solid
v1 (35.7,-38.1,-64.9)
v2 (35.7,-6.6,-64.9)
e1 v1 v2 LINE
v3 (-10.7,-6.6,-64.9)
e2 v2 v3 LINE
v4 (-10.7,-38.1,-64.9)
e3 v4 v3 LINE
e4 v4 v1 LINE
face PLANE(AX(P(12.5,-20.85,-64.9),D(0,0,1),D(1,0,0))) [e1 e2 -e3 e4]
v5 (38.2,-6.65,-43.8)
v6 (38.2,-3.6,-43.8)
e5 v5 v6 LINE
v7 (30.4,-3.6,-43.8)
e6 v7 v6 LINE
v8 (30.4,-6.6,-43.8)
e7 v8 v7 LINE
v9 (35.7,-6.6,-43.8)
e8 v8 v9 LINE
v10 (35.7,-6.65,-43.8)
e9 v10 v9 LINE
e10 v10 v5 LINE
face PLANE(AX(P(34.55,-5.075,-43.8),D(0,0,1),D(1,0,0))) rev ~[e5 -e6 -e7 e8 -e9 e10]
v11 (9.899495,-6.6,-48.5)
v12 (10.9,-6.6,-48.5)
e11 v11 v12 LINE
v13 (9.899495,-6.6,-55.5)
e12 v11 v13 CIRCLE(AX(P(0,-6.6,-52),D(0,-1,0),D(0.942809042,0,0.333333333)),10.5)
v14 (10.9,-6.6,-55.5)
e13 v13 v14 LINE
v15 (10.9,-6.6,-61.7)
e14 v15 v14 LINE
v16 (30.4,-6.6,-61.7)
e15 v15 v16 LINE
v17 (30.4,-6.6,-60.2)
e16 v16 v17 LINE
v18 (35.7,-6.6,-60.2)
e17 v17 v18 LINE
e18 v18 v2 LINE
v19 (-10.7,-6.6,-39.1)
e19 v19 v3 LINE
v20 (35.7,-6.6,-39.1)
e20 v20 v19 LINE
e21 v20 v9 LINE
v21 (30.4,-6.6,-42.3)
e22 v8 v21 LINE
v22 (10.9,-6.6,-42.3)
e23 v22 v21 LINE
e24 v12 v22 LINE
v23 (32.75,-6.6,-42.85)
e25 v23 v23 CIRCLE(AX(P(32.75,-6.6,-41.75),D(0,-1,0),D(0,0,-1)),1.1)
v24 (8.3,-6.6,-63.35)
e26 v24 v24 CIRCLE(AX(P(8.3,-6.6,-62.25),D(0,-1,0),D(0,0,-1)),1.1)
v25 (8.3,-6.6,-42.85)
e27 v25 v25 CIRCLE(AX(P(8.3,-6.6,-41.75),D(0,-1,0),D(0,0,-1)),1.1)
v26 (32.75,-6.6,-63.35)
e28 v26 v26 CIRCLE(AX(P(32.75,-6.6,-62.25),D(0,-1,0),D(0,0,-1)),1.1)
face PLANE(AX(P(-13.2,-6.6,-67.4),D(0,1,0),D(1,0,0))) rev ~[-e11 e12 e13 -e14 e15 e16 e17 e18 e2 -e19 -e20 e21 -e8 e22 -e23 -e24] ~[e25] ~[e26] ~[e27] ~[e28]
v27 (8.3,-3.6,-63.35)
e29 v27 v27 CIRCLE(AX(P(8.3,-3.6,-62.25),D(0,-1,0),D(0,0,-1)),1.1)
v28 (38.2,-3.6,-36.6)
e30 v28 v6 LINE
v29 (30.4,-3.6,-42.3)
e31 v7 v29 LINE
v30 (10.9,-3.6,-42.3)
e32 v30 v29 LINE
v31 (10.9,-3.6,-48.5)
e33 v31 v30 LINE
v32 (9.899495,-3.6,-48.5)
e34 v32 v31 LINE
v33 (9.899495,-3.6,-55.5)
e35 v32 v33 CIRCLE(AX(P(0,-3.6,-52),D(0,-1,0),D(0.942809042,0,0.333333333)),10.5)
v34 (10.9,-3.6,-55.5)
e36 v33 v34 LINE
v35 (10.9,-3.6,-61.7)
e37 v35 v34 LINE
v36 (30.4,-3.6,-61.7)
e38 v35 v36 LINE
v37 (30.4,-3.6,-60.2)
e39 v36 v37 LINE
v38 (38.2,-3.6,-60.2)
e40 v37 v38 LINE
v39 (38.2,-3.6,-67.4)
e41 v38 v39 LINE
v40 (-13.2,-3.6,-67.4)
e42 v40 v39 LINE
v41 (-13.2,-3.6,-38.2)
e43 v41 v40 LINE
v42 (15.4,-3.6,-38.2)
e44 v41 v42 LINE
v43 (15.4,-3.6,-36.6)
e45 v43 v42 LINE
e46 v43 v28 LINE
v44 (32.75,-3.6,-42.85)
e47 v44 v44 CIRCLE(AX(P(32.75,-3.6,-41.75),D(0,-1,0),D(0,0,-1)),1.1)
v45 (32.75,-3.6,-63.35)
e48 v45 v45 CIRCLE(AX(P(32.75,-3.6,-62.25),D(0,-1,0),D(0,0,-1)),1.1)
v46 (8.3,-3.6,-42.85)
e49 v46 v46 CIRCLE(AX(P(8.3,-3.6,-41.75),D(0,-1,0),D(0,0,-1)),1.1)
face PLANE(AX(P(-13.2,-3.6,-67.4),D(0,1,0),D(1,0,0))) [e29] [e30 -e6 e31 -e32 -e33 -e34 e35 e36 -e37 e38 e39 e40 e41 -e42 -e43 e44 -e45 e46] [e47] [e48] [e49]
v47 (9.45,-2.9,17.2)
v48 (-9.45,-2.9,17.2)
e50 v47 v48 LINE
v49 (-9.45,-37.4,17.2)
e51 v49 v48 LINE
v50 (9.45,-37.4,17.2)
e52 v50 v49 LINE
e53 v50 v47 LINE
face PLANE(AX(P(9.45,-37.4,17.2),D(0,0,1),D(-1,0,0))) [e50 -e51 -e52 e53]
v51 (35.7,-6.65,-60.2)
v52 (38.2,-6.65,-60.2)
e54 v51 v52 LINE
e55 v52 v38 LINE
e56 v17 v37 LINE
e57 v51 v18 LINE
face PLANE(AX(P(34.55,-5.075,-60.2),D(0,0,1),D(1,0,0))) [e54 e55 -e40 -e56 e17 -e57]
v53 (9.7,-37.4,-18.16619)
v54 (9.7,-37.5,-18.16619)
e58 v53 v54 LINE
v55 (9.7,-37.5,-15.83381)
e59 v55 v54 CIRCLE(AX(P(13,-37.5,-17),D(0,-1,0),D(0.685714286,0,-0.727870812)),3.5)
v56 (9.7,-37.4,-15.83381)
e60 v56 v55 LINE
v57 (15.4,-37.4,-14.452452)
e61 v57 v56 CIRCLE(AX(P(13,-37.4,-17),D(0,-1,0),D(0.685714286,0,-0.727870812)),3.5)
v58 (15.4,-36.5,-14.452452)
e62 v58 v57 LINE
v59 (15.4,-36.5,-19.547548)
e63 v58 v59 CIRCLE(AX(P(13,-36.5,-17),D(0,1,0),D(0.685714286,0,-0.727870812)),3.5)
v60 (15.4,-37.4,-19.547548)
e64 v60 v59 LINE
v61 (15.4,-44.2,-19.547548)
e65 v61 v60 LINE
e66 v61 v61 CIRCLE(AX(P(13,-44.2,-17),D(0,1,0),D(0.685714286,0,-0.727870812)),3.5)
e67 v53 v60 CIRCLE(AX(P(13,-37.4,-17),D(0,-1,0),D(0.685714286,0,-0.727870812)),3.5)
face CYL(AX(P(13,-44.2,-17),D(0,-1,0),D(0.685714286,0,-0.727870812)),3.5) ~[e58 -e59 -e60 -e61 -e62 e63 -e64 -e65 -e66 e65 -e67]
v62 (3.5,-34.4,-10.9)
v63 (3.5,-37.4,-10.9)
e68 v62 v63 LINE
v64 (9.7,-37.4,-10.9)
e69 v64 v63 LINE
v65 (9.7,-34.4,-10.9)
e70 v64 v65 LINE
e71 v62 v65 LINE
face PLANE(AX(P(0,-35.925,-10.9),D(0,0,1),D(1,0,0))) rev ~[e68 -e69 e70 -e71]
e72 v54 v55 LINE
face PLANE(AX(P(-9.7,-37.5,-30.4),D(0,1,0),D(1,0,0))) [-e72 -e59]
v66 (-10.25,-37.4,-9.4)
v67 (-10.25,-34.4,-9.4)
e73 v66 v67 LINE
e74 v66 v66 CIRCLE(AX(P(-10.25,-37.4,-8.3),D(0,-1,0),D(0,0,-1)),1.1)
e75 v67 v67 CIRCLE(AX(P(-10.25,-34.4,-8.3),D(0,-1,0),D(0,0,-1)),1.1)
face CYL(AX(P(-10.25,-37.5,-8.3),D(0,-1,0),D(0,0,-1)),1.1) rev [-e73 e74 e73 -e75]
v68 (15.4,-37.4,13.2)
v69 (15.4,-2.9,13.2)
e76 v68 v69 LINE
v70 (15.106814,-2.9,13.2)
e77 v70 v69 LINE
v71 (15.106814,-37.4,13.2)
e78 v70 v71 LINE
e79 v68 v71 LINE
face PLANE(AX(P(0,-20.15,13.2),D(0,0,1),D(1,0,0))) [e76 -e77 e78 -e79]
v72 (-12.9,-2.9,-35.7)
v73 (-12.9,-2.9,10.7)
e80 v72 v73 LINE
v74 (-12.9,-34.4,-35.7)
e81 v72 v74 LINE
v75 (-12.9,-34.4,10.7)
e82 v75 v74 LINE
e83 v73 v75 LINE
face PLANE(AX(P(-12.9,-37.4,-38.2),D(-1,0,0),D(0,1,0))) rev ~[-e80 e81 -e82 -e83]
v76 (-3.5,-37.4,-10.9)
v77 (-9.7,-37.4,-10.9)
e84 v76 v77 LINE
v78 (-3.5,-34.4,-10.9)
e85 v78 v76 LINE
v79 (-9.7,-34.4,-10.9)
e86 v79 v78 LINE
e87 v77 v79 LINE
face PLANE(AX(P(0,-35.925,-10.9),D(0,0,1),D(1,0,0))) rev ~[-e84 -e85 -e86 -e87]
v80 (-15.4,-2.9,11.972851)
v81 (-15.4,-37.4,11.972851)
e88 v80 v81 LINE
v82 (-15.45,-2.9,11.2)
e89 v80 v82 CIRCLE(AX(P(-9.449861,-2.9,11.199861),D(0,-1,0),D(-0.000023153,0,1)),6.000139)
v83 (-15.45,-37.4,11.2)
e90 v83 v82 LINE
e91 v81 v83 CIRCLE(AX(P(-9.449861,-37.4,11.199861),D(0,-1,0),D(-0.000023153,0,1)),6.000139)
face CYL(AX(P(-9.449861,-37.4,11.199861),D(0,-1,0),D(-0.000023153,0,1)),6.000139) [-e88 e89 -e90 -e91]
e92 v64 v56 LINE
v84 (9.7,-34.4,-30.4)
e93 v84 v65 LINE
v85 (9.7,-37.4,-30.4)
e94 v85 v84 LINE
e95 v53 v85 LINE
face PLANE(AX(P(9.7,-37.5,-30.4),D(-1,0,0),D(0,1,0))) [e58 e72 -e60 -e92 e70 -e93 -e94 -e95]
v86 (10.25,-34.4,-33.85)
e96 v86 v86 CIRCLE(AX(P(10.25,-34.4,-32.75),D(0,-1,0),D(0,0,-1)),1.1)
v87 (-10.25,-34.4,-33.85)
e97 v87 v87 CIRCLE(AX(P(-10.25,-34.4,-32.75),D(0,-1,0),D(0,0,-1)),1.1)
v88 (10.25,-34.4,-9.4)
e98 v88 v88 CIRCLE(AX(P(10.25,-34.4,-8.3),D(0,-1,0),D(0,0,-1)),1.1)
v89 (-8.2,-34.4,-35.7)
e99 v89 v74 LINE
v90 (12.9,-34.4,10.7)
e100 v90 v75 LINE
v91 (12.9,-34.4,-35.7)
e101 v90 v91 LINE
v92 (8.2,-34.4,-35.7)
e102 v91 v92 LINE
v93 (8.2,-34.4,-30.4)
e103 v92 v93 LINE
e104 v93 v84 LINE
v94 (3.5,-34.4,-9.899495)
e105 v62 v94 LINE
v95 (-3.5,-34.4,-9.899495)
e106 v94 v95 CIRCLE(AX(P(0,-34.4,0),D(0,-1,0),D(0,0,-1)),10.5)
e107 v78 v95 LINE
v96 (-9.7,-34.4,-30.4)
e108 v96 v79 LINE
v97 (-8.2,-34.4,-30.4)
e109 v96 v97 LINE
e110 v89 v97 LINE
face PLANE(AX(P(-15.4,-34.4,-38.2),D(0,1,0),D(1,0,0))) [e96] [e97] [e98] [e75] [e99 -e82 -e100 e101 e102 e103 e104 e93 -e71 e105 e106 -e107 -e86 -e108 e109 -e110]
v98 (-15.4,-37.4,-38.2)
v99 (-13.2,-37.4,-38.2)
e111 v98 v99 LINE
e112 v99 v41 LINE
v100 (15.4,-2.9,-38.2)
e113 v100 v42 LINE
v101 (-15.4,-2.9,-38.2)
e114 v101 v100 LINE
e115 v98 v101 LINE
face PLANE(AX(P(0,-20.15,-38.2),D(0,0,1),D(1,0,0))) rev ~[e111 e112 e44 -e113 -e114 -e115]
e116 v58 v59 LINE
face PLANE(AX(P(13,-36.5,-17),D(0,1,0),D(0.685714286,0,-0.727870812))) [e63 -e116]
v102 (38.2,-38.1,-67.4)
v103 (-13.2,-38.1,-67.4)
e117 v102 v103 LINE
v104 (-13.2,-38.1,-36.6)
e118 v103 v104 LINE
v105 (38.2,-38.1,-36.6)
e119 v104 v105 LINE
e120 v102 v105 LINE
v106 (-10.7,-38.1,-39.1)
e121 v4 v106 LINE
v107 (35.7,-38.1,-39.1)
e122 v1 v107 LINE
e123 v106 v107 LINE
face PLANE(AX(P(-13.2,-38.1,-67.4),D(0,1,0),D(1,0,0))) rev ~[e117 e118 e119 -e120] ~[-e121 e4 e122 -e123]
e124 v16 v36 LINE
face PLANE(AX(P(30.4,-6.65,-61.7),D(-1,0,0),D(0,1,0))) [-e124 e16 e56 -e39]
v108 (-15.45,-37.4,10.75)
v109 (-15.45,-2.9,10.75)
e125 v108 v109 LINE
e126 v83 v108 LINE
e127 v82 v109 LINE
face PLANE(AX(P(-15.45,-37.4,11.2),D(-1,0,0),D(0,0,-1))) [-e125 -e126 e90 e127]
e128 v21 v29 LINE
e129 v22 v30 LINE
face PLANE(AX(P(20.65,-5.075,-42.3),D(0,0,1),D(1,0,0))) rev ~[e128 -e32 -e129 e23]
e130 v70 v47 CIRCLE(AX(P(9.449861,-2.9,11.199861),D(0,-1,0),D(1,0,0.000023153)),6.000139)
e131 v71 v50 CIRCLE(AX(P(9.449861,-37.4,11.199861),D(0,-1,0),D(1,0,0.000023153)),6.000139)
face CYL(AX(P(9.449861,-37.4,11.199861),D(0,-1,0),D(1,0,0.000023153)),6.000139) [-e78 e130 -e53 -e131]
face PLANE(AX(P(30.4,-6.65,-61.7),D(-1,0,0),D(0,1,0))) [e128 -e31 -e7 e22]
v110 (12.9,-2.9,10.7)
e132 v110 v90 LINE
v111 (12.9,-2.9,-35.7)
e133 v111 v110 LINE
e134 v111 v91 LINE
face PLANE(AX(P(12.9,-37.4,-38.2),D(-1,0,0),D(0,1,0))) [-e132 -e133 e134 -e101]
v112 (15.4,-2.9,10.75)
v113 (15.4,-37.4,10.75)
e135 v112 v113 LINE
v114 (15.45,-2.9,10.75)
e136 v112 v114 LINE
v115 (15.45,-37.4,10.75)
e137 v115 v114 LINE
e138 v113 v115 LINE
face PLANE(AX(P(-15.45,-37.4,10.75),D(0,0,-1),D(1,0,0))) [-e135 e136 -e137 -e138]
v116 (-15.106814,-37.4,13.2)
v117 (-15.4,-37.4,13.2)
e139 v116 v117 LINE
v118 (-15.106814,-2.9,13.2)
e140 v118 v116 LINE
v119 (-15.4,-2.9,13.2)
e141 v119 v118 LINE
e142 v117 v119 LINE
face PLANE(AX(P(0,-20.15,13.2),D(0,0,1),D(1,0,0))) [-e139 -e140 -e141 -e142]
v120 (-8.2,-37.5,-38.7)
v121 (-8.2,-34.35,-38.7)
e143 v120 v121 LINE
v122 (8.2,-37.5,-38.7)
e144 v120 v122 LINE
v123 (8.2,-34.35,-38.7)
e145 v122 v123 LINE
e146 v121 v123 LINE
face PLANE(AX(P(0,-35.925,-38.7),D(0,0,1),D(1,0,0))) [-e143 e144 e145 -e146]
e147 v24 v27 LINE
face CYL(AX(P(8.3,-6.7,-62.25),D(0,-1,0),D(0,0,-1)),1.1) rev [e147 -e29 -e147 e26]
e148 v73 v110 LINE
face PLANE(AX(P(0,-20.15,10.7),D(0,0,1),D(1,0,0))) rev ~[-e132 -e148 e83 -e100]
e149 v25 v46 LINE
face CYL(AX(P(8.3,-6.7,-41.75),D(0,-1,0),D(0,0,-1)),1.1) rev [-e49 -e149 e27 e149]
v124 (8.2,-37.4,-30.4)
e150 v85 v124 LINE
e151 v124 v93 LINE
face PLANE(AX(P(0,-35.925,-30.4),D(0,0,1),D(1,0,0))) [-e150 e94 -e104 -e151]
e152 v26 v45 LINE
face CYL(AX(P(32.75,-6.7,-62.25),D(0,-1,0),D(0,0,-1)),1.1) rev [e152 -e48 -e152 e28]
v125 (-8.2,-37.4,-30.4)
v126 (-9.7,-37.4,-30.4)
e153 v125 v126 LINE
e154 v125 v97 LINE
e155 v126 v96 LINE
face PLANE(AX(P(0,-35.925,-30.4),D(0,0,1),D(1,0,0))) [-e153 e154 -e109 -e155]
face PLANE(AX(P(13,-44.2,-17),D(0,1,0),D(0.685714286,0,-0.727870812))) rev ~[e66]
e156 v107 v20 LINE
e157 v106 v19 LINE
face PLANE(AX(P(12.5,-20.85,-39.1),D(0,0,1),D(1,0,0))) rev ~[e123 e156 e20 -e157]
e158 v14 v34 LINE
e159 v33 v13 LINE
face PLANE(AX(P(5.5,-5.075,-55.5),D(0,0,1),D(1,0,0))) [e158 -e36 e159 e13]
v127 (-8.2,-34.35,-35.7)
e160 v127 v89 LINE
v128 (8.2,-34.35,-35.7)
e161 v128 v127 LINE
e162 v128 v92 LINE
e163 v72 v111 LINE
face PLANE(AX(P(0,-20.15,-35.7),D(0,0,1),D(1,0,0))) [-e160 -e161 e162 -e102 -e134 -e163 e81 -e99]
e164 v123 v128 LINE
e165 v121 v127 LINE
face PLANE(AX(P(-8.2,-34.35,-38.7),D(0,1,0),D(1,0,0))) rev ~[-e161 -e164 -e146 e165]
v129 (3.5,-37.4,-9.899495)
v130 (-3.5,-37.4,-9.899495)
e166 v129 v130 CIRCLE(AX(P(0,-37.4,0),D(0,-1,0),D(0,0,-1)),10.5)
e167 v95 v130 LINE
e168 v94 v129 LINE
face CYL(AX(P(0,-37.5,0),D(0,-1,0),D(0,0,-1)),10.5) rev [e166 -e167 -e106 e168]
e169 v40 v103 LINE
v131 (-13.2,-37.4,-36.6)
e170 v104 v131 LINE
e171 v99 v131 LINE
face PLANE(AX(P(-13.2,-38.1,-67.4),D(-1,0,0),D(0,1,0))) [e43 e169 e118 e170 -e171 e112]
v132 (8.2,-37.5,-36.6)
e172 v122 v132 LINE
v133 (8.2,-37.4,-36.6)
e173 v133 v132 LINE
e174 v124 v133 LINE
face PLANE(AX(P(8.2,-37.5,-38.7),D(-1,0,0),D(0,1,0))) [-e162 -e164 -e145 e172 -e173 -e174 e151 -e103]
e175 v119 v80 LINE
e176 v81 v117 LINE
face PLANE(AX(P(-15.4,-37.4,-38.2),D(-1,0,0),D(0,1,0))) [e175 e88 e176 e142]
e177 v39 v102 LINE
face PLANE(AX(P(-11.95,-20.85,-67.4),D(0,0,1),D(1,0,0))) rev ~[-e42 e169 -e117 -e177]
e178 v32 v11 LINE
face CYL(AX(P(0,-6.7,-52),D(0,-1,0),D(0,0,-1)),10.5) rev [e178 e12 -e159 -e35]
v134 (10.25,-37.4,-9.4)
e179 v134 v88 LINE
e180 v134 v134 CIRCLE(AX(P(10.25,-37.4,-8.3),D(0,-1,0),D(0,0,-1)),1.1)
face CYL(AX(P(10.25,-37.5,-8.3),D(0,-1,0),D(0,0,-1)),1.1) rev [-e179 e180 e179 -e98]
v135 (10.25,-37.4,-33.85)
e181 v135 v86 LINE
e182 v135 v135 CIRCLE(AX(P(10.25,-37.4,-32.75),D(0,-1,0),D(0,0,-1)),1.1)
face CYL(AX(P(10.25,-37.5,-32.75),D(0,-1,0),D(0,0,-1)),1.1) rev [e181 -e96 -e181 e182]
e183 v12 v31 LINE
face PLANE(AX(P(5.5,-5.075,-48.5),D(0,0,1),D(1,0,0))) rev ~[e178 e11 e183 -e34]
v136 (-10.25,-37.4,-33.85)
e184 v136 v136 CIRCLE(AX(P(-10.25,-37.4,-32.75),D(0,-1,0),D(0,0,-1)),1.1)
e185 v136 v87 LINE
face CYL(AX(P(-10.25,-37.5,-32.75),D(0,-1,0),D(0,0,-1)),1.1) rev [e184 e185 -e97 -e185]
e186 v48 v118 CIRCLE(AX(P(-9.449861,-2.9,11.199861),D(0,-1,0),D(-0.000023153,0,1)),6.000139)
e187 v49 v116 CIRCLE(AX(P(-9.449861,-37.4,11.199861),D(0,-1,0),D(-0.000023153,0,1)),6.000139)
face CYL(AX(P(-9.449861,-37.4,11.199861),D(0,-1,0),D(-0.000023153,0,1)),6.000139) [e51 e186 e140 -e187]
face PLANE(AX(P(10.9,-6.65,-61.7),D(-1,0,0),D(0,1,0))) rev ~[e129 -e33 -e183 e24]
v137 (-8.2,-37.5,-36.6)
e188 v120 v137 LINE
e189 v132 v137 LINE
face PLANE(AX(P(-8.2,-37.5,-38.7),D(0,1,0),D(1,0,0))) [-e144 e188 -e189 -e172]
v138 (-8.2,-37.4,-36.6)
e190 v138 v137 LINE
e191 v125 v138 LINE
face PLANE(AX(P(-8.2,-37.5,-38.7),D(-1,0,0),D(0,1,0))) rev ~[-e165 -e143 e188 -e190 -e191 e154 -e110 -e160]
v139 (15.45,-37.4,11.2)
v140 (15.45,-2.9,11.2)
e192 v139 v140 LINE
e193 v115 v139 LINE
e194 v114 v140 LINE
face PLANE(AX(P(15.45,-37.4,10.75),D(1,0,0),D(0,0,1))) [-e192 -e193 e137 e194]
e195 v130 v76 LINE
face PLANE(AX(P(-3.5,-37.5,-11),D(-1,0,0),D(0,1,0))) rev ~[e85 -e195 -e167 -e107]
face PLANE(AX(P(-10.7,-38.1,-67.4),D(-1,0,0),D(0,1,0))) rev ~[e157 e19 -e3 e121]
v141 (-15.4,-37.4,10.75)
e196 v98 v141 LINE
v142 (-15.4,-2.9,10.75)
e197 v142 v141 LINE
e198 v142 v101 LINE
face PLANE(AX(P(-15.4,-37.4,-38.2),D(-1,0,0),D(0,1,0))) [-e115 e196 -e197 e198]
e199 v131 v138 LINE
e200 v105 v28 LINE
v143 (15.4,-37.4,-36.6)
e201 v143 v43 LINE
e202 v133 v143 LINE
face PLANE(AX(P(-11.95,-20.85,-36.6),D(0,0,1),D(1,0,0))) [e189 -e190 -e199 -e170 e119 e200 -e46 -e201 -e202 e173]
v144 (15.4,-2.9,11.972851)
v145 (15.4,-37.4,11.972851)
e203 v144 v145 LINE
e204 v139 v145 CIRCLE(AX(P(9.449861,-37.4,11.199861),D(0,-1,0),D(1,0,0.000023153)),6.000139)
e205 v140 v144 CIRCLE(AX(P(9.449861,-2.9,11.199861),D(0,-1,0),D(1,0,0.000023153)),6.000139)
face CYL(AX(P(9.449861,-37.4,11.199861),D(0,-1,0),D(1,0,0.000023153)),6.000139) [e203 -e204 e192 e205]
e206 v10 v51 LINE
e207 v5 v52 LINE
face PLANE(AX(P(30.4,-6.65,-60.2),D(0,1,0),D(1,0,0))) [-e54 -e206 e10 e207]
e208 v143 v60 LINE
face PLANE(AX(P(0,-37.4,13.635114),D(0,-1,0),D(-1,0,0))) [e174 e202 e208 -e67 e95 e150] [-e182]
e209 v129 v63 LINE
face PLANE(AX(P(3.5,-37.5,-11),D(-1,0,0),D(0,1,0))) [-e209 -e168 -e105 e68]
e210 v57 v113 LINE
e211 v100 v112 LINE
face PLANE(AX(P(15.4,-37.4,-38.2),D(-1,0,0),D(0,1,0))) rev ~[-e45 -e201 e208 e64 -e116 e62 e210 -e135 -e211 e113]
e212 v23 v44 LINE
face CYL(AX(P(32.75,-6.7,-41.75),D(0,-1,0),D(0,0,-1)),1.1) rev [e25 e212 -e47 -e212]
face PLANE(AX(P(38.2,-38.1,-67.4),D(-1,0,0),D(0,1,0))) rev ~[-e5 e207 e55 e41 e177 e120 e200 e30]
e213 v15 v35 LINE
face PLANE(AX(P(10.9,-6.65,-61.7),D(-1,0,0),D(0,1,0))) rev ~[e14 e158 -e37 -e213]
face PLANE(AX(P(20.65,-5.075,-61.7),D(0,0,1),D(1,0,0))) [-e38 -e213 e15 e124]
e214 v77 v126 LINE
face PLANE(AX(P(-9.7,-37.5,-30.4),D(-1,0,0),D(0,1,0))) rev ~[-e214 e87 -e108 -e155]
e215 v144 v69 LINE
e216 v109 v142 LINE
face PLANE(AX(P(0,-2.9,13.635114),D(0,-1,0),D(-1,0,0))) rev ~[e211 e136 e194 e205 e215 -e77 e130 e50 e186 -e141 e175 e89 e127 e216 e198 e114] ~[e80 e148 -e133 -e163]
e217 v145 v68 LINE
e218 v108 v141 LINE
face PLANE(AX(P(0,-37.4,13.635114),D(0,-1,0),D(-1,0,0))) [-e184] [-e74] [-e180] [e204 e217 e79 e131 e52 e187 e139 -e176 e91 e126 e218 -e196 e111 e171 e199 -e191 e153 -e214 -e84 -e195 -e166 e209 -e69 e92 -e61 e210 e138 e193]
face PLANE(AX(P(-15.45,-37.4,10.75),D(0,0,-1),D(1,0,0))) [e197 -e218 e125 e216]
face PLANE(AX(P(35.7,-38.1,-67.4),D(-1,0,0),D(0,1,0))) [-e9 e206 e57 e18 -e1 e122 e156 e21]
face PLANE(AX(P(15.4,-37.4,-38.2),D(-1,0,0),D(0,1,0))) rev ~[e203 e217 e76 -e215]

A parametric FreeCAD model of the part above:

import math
import FreeCAD as App
import Part
import Sketcher

V = App.Vector


def add_polygon(sketch, points):
    """Adds a closed chain of lines whose ends are joined by coincident constraints."""
    first, n = sketch.GeometryCount, len(points)
    for a, b in zip(points, points[1:] + points[:1]):
        sketch.addGeometry(Part.LineSegment(App.Vector(*a, 0), App.Vector(*b, 0)), False)
    for i in range(n):
        sketch.addConstraint(Sketcher.Constraint("Coincident", first + i, 2, first + (i + 1) % n, 1))

doc = App.newDocument("Part")
params = doc.addObject("Spreadsheet::Sheet", "Params")
for row, (alias, value) in enumerate([
    ("sketch1_width", "30.8 mm"),
    ("sketch1_height", "34.5 mm"),
    ("pad1_length", "2.5 mm"),
    ("sketch2_width", "30.8 mm"),
    ("sketch2_height", "34.5 mm"),
    ("pad2_length", "2.5 mm"),
    ("sketch3_width", "2.5 mm"),
    ("sketch3_height", "34.5 mm"),
    ("pad3_length", "51.4 mm"),
    ("sketch4_width", "2.5 mm"),
    ("sketch4_height", "34.5 mm"),
    ("pad4_length", "51.4 mm"),
    ("sketch5_height", "3 mm"),
    ("sketch5_width", "30.8 mm"),
    ("pad5_length", "51.4 mm"),
    ("sketch6_width", "2.5 mm"),
    ("sketch6_height", "34.5 mm"),
    ("pad6_length", "30.8 mm"),
    ("sketch7_width", "2.5 mm"),
    ("sketch7_height", "34.5 mm"),
    ("pad7_length", "30.8 mm"),
    ("sketch8_width", "51.4 mm"),
    ("sketch8_height", "34.5 mm"),
    ("pad8_length", "2.5 mm"),
    ("sketch9_width", "51.4 mm"),
    ("sketch9_height", "34.5 mm"),
    ("pad9_length", "2.5 mm"),
    ("sketch10_height", "3 mm"),
    ("sketch10_width", "51.4 mm"),
    ("pad10_length", "30.8 mm"),
    ("sketch11_width", "30.9 mm"),
    ("sketch11_width2", "18.9 mm"),
    ("sketch11_height", "0.45 mm"),
    ("pad11_length", "34.5 mm"),
    ("sketch12_diameter", "7 mm"),
    ("pad12_length", "7.7 mm"),
    ("sketch13_diameter", "21 mm"),
    ("pocket1_length", "3.2 mm"),
    ("sketch14_width", "19.4 mm"),
    ("sketch14_height", "3.15 mm"),
    ("pocket2_length", "19.5 mm"),
    ("sketch15_width", "16.4 mm"),
    ("sketch15_height", "3.15 mm"),
    ("pocket3_length", "8.3 mm"),
    ("sketch16_width", "7 mm"),
    ("sketch16_height", "3.15 mm"),
    ("pocket4_length", "11 mm"),
    ("sketch17_diameter", "2.2 mm"),
    ("pocket5_length", "3.2 mm"),
    ("sketch18_diameter", "2.2 mm"),
    ("pocket6_length", "3.2 mm"),
    ("sketch19_diameter", "2.2 mm"),
    ("pocket7_length", "3.2 mm"),
    ("sketch20_diameter", "2.2 mm"),
    ("pocket8_length", "3.2 mm"),
    ("sketch21_diameter", "21 mm"),
    ("pocket9_length", "3.2 mm"),
    ("sketch22_width", "19.5 mm"),
    ("sketch22_height", "3.15 mm"),
    ("pocket10_length", "19.4 mm"),
    ("sketch23_width", "8.3 mm"),
    ("sketch23_height", "3.15 mm"),
    ("pocket11_length", "16.4 mm"),
    ("sketch24_width", "11 mm"),
    ("sketch24_height", "3.15 mm"),
    ("pocket12_length", "7 mm"),
    ("sketch25_diameter", "2.2 mm"),
    ("pocket13_length", "3.2 mm"),
    ("sketch26_diameter", "2.2 mm"),
    ("pocket14_length", "3.2 mm"),
    ("sketch27_diameter", "2.2 mm"),
    ("pocket15_length", "3.2 mm"),
    ("sketch28_diameter", "2.2 mm"),
    ("pocket16_length", "3.2 mm"),
], start=1):
    params.set(f"A{row}", alias)
    params.set(f"B{row}", "=" + value)
    params.setAlias(f"B{row}", alias)

body = doc.addObject("PartDesign::Body", "Body")

# Sketch on XY plane
sketch1 = body.newObject("Sketcher::SketchObject", "Sketch")
sketch1.AttachmentSupport = (doc.getObject("XY_Plane"), [""])
sketch1.MapMode = "FlatFace"
sketch1.AttachmentOffset = App.Placement(V(0, 0, -38.2), App.Rotation())
add_polygon(sketch1, [(-15.4, -2.9), (-15.4, -37.4), (15.4, -37.4), (15.4, -2.9)])  # lines 0-3
sketch1.addConstraint([
    Sketcher.Constraint("Vertical", 0),
    Sketcher.Constraint("Horizontal", 1),
    Sketcher.Constraint("Vertical", 2),
    Sketcher.Constraint("Horizontal", 3),
    Sketcher.Constraint("DistanceX", 1, 1, 1, 2, 30.8),
    Sketcher.Constraint("DistanceY", 0, 2, 0, 1, 34.5),
    Sketcher.Constraint("DistanceX", 0, 2, -1, 1, 15.4),
    Sketcher.Constraint("DistanceY", 0, 2, -1, 1, 37.4),
])
sketch1.setExpression("Constraints[8]", "Params.sketch1_width")
sketch1.setExpression("Constraints[9]", "Params.sketch1_height")
pad1 = body.newObject("PartDesign::Pad", "Pad")
pad1.Profile = sketch1
pad1.setExpression("Length", "Params.pad1_length")
body2 = doc.addObject("PartDesign::Body", "Body001")

# Sketch on XY plane
sketch2 = body2.newObject("Sketcher::SketchObject", "Sketch001")
sketch2.AttachmentSupport = (doc.getObject("XY_Plane001"), [""])
sketch2.MapMode = "FlatFace"
sketch2.AttachmentOffset = App.Placement(V(0, 0, 10.7), App.Rotation())
add_polygon(sketch2, [(-15.4, -2.9), (-15.4, -37.4), (15.4, -37.4), (15.4, -2.9)])  # lines 0-3
sketch2.addConstraint([
    Sketcher.Constraint("Vertical", 0),
    Sketcher.Constraint("Horizontal", 1),
    Sketcher.Constraint("Vertical", 2),
    Sketcher.Constraint("Horizontal", 3),
    Sketcher.Constraint("DistanceX", 1, 1, 1, 2, 30.8),
    Sketcher.Constraint("DistanceY", 0, 2, 0, 1, 34.5),
    Sketcher.Constraint("DistanceX", 0, 2, -1, 1, 15.4),
    Sketcher.Constraint("DistanceY", 0, 2, -1, 1, 37.4),
])
sketch2.setExpression("Constraints[8]", "Params.sketch2_width")
sketch2.setExpression("Constraints[9]", "Params.sketch2_height")
pad2 = body2.newObject("PartDesign::Pad", "Pad001")
pad2.Profile = sketch2
pad2.setExpression("Length", "Params.pad2_length")
body.AllowCompound = True
doc.recompute()

boolean = body.newObject("PartDesign::Boolean", "Boolean")
boolean.Type = "Fuse"
boolean.addObjects([body2])

# Sketch on XY plane
sketch3 = body.newObject("Sketcher::SketchObject", "Sketch002")
sketch3.AttachmentSupport = (doc.getObject("XY_Plane"), [""])
sketch3.MapMode = "FlatFace"
sketch3.AttachmentOffset = App.Placement(V(0, 0, -38.2), App.Rotation())
add_polygon(sketch3, [(-15.4, -2.9), (-15.4, -37.4), (-12.9, -37.4), (-12.9, -2.9)])  # lines 0-3
sketch3.addConstraint([
    Sketcher.Constraint("Vertical", 0),
    Sketcher.Constraint("Horizontal", 1),
    Sketcher.Constraint("Vertical", 2),
    Sketcher.Constraint("Horizontal", 3),
    Sketcher.Constraint("DistanceX", 1, 1, 1, 2, 2.5),
    Sketcher.Constraint("DistanceY", 0, 2, 0, 1, 34.5),
    Sketcher.Constraint("DistanceX", 0, 2, -1, 1, 15.4),
    Sketcher.Constraint("DistanceY", 0, 2, -1, 1, 37.4),
])
sketch3.setExpression("Constraints[8]", "Params.sketch3_width")
sketch3.setExpression("Constraints[9]", "Params.sketch3_height")
pad3 = body.newObject("PartDesign::Pad", "Pad002")
pad3.Profile = sketch3
pad3.setExpression("Length", "Params.pad3_length")

# Sketch on XY plane
sketch4 = body.newObject("Sketcher::SketchObject", "Sketch003")
sketch4.AttachmentSupport = (doc.getObject("XY_Plane"), [""])
sketch4.MapMode = "FlatFace"
sketch4.AttachmentOffset = App.Placement(V(0, 0, -38.2), App.Rotation())
add_polygon(sketch4, [(12.9, -2.9), (12.9, -37.4), (15.4, -37.4), (15.4, -2.9)])  # lines 0-3
sketch4.addConstraint([
    Sketcher.Constraint("Vertical", 0),
    Sketcher.Constraint("Horizontal", 1),
    Sketcher.Constraint("Vertical", 2),
    Sketcher.Constraint("Horizontal", 3),
    Sketcher.Constraint("DistanceX", 1, 1, 1, 2, 2.5),
    Sketcher.Constraint("DistanceY", 0, 2, 0, 1, 34.5),
    Sketcher.Constraint("DistanceX", -1, 1, 0, 2, 12.9),
    Sketcher.Constraint("DistanceY", 0, 2, -1, 1, 37.4),
])
sketch4.setExpression("Constraints[8]", "Params.sketch4_width")
sketch4.setExpression("Constraints[9]", "Params.sketch4_height")
pad4 = body.newObject("PartDesign::Pad", "Pad003")
pad4.Profile = sketch4
pad4.setExpression("Length", "Params.pad4_length")

# Sketch on XY plane
sketch5 = body.newObject("Sketcher::SketchObject", "Sketch004")
sketch5.AttachmentSupport = (doc.getObject("XY_Plane"), [""])
sketch5.MapMode = "FlatFace"
sketch5.AttachmentOffset = App.Placement(V(0, 0, -38.2), App.Rotation())
add_polygon(sketch5, [(-15.4, -34.4), (-15.4, -37.4), (15.4, -37.4), (15.4, -34.4)])  # lines 0-3
sketch5.addConstraint([
    Sketcher.Constraint("Vertical", 0),
    Sketcher.Constraint("Horizontal", 1),
    Sketcher.Constraint("Vertical", 2),
    Sketcher.Constraint("Horizontal", 3),
    Sketcher.Constraint("DistanceY", 0, 2, 0, 1, 3.0),
    Sketcher.Constraint("DistanceX", 1, 1, 1, 2, 30.8),
    Sketcher.Constraint("DistanceX", 0, 2, -1, 1, 15.4),
    Sketcher.Constraint("DistanceY", 0, 2, -1, 1, 37.4),
])
sketch5.setExpression("Constraints[8]", "Params.sketch5_height")
sketch5.setExpression("Constraints[9]", "Params.sketch5_width")
pad5 = body.newObject("PartDesign::Pad", "Pad004")
pad5.Profile = sketch5
pad5.setExpression("Length", "Params.pad5_length")

# Sketch on XY plane
sketch6 = body.newObject("Sketcher::SketchObject", "Sketch005")
sketch6.AttachmentSupport = (doc.getObject("XY_Plane"), [""])
sketch6.MapMode = "FlatFace"
sketch6.AttachmentOffset = App.Placement(V(0, 0, -67.4), App.Rotation())
add_polygon(sketch6, [(-13.2, -3.6), (-13.2, -38.1), (-10.7, -38.1), (-10.7, -3.6)])  # lines 0-3
sketch6.addConstraint([
    Sketcher.Constraint("Vertical", 0),
    Sketcher.Constraint("Horizontal", 1),
    Sketcher.Constraint("Vertical", 2),
    Sketcher.Constraint("Horizontal", 3),
    Sketcher.Constraint("DistanceX", 1, 1, 1, 2, 2.5),
    Sketcher.Constraint("DistanceY", 0, 2, 0, 1, 34.5),
    Sketcher.Constraint("DistanceX", 0, 2, -1, 1, 13.2),
    Sketcher.Constraint("DistanceY", 0, 2, -1, 1, 38.1),
])
sketch6.setExpression("Constraints[8]", "Params.sketch6_width")
sketch6.setExpression("Constraints[9]", "Params.sketch6_height")
pad6 = body.newObject("PartDesign::Pad", "Pad005")
pad6.Profile = sketch6
pad6.setExpression("Length", "Params.pad6_length")
body3 = doc.addObject("PartDesign::Body", "Body002")

# Sketch on XY plane
sketch7 = body3.newObject("Sketcher::SketchObject", "Sketch006")
sketch7.AttachmentSupport = (doc.getObject("XY_Plane002"), [""])
sketch7.MapMode = "FlatFace"
sketch7.AttachmentOffset = App.Placement(V(0, 0, -67.4), App.Rotation())
add_polygon(sketch7, [(35.7, -3.6), (35.7, -38.1), (38.2, -38.1), (38.2, -3.6)])  # lines 0-3
sketch7.addConstraint([
    Sketcher.Constraint("Vertical", 0),
    Sketcher.Constraint("Horizontal", 1),
    Sketcher.Constraint("Vertical", 2),
    Sketcher.Constraint("Horizontal", 3),
    Sketcher.Constraint("DistanceX", 1, 1, 1, 2, 2.5),
    Sketcher.Constraint("DistanceY", 0, 2, 0, 1, 34.5),
    Sketcher.Constraint("DistanceX", -1, 1, 0, 2, 35.7),
    Sketcher.Constraint("DistanceY", 0, 2, -1, 1, 38.1),
])
sketch7.setExpression("Constraints[8]", "Params.sketch7_width")
sketch7.setExpression("Constraints[9]", "Params.sketch7_height")
pad7 = body3.newObject("PartDesign::Pad", "Pad006")
pad7.Profile = sketch7
pad7.setExpression("Length", "Params.pad7_length")
body.AllowCompound = True
doc.recompute()

boolean2 = body.newObject("PartDesign::Boolean", "Boolean001")
boolean2.Type = "Fuse"
boolean2.addObjects([body3])

# Sketch on XY plane
sketch8 = body.newObject("Sketcher::SketchObject", "Sketch007")
sketch8.AttachmentSupport = (doc.getObject("XY_Plane"), [""])
sketch8.MapMode = "FlatFace"
sketch8.AttachmentOffset = App.Placement(V(0, 0, -67.4), App.Rotation())
add_polygon(sketch8, [(-13.2, -3.6), (-13.2, -38.1), (38.2, -38.1), (38.2, -3.6)])  # lines 0-3
sketch8.addConstraint([
    Sketcher.Constraint("Vertical", 0),
    Sketcher.Constraint("Horizontal", 1),
    Sketcher.Constraint("Vertical", 2),
    Sketcher.Constraint("Horizontal", 3),
    Sketcher.Constraint("DistanceX", 1, 1, 1, 2, 51.4),
    Sketcher.Constraint("DistanceY", 0, 2, 0, 1, 34.5),
    Sketcher.Constraint("DistanceX", 0, 2, -1, 1, 13.2),
    Sketcher.Constraint("DistanceY", 0, 2, -1, 1, 38.1),
])
sketch8.setExpression("Constraints[8]", "Params.sketch8_width")
sketch8.setExpression("Constraints[9]", "Params.sketch8_height")
pad8 = body.newObject("PartDesign::Pad", "Pad007")
pad8.Profile = sketch8
pad8.setExpression("Length", "Params.pad8_length")

# Sketch on XY plane
sketch9 = body.newObject("Sketcher::SketchObject", "Sketch008")
sketch9.AttachmentSupport = (doc.getObject("XY_Plane"), [""])
sketch9.MapMode = "FlatFace"
sketch9.AttachmentOffset = App.Placement(V(0, 0, -39.1), App.Rotation())
add_polygon(sketch9, [(-13.2, -3.6), (-13.2, -38.1), (38.2, -38.1), (38.2, -3.6)])  # lines 0-3
sketch9.addConstraint([
    Sketcher.Constraint("Vertical", 0),
    Sketcher.Constraint("Horizontal", 1),
    Sketcher.Constraint("Vertical", 2),
    Sketcher.Constraint("Horizontal", 3),
    Sketcher.Constraint("DistanceX", 1, 1, 1, 2, 51.4),
    Sketcher.Constraint("DistanceY", 0, 2, 0, 1, 34.5),
    Sketcher.Constraint("DistanceX", 0, 2, -1, 1, 13.2),
    Sketcher.Constraint("DistanceY", 0, 2, -1, 1, 38.1),
])
sketch9.setExpression("Constraints[8]", "Params.sketch9_width")
sketch9.setExpression("Constraints[9]", "Params.sketch9_height")
pad9 = body.newObject("PartDesign::Pad", "Pad008")
pad9.Profile = sketch9
pad9.setExpression("Length", "Params.pad9_length")

# Sketch on XY plane
sketch10 = body.newObject("Sketcher::SketchObject", "Sketch009")
sketch10.AttachmentSupport = (doc.getObject("XY_Plane"), [""])
sketch10.MapMode = "FlatFace"
sketch10.AttachmentOffset = App.Placement(V(0, 0, -67.4), App.Rotation())
add_polygon(sketch10, [(-13.2, -3.6), (-13.2, -6.6), (38.2, -6.6), (38.2, -3.6)])  # lines 0-3
sketch10.addConstraint([
    Sketcher.Constraint("Vertical", 0),
    Sketcher.Constraint("Horizontal", 1),
    Sketcher.Constraint("Vertical", 2),
    Sketcher.Constraint("Horizontal", 3),
    Sketcher.Constraint("DistanceY", 0, 2, 0, 1, 3.0),
    Sketcher.Constraint("DistanceX", 1, 1, 1, 2, 51.4),
    Sketcher.Constraint("DistanceX", 0, 2, -1, 1, 13.2),
    Sketcher.Constraint("DistanceY", 0, 2, -1, 1, 6.6),
])
sketch10.setExpression("Constraints[8]", "Params.sketch10_height")
sketch10.setExpression("Constraints[9]", "Params.sketch10_width")
pad10 = body.newObject("PartDesign::Pad", "Pad009")
pad10.Profile = sketch10
pad10.setExpression("Length", "Params.pad10_length")

# Sketch on XZ plane
sketch11 = body.newObject("Sketcher::SketchObject", "Sketch010")
sketch11.AttachmentSupport = (doc.getObject("XZ_Plane"), [""])
sketch11.MapMode = "FlatFace"
sketch11.AttachmentOffset = App.Placement(V(0, 0, 37.4), App.Rotation())
sketch11.addGeometry([
    Part.LineSegment(V(15.45, 10.75, 0), V(-15.45, 10.75, 0)),  # 0
    Part.LineSegment(V(-15.45, 10.75, 0), V(-15.45, 11.2, 0)),  # 1
    Part.ArcOfCircle(Part.Circle(V(-9.449861, 11.199861, 0), V(0, 0, 1), 6.000139), math.radians(90.001327), math.radians(179.998673)),  # 2
    Part.LineSegment(V(-9.45, 17.2, 0), V(9.45, 17.2, 0)),  # 3
    Part.ArcOfCircle(Part.Circle(V(9.449861, 11.199861, 0), V(0, 0, 1), 6.000139), math.radians(0.001327), math.radians(89.998673)),  # 4
    Part.LineSegment(V(15.45, 11.2, 0), V(15.45, 10.75, 0)),  # 5
], False)
sketch11.addConstraint([
    Sketcher.Constraint("Coincident", 0, 2, 1, 1),
    Sketcher.Constraint("Coincident", 1, 2, 2, 2),
    Sketcher.Constraint("Coincident", 2, 1, 3, 1),
    Sketcher.Constraint("Coincident", 3, 2, 4, 2),
    Sketcher.Constraint("Coincident", 4, 1, 5, 1),
    Sketcher.Constraint("Coincident", 5, 2, 0, 1),
    Sketcher.Constraint("Horizontal", 0),
    Sketcher.Constraint("Vertical", 1),
    Sketcher.Constraint("Horizontal", 3),
    Sketcher.Constraint("Vertical", 5),
    Sketcher.Constraint("Equal", 2, 4),
    Sketcher.Constraint("Symmetric", 1, 2, 4, 1, -2),
    Sketcher.Constraint("DistanceX", 0, 2, 0, 1, 30.9),
    Sketcher.Constraint("DistanceX", 3, 1, 3, 2, 18.9),
    Sketcher.Constraint("DistanceX", 1, 2, 2, 1, 6.0),
    Sketcher.Constraint("DistanceY", 1, 2, 2, 1, 6.0),
    Sketcher.Constraint("DistanceY", 1, 1, 1, 2, 0.45),
    Sketcher.Constraint("DistanceY", -1, 1, 1, 2, 11.2),
    Sketcher.Constraint("Radius", 2, 6.000139),
])
sketch11.setExpression("Constraints[12]", "Params.sketch11_width")
sketch11.setExpression("Constraints[13]", "Params.sketch11_width2")
sketch11.setExpression("Constraints[16]", "Params.sketch11_height")
pad11 = body.newObject("PartDesign::Pad", "Pad010")
pad11.Profile = sketch11
pad11.setExpression("Length", "Params.pad11_length")
pad11.Reversed = True

# Sketch on XZ plane
sketch12 = body.newObject("Sketcher::SketchObject", "Sketch011")
sketch12.AttachmentSupport = (doc.getObject("XZ_Plane"), [""])
sketch12.MapMode = "FlatFace"
sketch12.AttachmentOffset = App.Placement(V(0, 0, 44.2), App.Rotation())
sketch12.addGeometry(Part.Circle(V(13, -17, 0), V(0, 0, 1), 3.5), False)
sketch12.addConstraint([
    Sketcher.Constraint("Diameter", 0, 7.0),
    Sketcher.Constraint("DistanceX", -1, 1, 0, 3, 13.0),
    Sketcher.Constraint("DistanceY", 0, 3, -1, 1, 17.0),
])
sketch12.setExpression("Constraints[0]", "Params.sketch12_diameter")
pad12 = body.newObject("PartDesign::Pad", "Pad011")
pad12.Profile = sketch12
pad12.setExpression("Length", "Params.pad12_length")
pad12.Reversed = True

# Sketch on XZ plane
sketch13 = body.newObject("Sketcher::SketchObject", "Sketch012")
sketch13.AttachmentSupport = (doc.getObject("XZ_Plane"), [""])
sketch13.MapMode = "FlatFace"
sketch13.AttachmentOffset = App.Placement(V(0, 0, 37.5), App.Rotation())
sketch13.addGeometry(Part.Circle(V(0, 0, 0), V(0, 0, 1), 10.5), False)
sketch13.addConstraint([
    Sketcher.Constraint("Coincident", 0, 3, -1, 1),
    Sketcher.Constraint("Diameter", 0, 21.0),
])
sketch13.setExpression("Constraints[1]", "Params.sketch13_diameter")
pocket1 = body.newObject("PartDesign::Pocket", "Pocket")
pocket1.Profile = sketch13
pocket1.setExpression("Length", "Params.pocket1_length")

# Sketch on XY plane
sketch14 = body.newObject("Sketcher::SketchObject", "Sketch013")
sketch14.AttachmentSupport = (doc.getObject("XY_Plane"), [""])
sketch14.MapMode = "FlatFace"
sketch14.AttachmentOffset = App.Placement(V(0, 0, -30.4), App.Rotation())
add_polygon(sketch14, [(-9.7, -34.35), (-9.7, -37.5), (9.7, -37.5), (9.7, -34.35)])  # lines 0-3
sketch14.addConstraint([
    Sketcher.Constraint("Vertical", 0),
    Sketcher.Constraint("Horizontal", 1),
    Sketcher.Constraint("Vertical", 2),
    Sketcher.Constraint("Horizontal", 3),
    Sketcher.Constraint("DistanceX", 1, 1, 1, 2, 19.4),
    Sketcher.Constraint("DistanceY", 0, 2, 0, 1, 3.15),
    Sketcher.Constraint("DistanceX", 0, 2, -1, 1, 9.7),
    Sketcher.Constraint("DistanceY", 0, 2, -1, 1, 37.5),
])
sketch14.setExpression("Constraints[8]", "Params.sketch14_width")
sketch14.setExpression("Constraints[9]", "Params.sketch14_height")
pocket2 = body.newObject("PartDesign::Pocket", "Pocket001")
pocket2.Profile = sketch14
pocket2.setExpression("Length", "Params.pocket2_length")
pocket2.Reversed = True

# Sketch on XY plane
sketch15 = body.newObject("Sketcher::SketchObject", "Sketch014")
sketch15.AttachmentSupport = (doc.getObject("XY_Plane"), [""])
sketch15.MapMode = "FlatFace"
sketch15.AttachmentOffset = App.Placement(V(0, 0, -38.7), App.Rotation())
add_polygon(sketch15, [(-8.2, -34.35), (-8.2, -37.5), (8.2, -37.5), (8.2, -34.35)])  # lines 0-3
sketch15.addConstraint([
    Sketcher.Constraint("Vertical", 0),
    Sketcher.Constraint("Horizontal", 1),
    Sketcher.Constraint("Vertical", 2),
    Sketcher.Constraint("Horizontal", 3),
    Sketcher.Constraint("DistanceX", 1, 1, 1, 2, 16.4),
    Sketcher.Constraint("DistanceY", 0, 2, 0, 1, 3.15),
    Sketcher.Constraint("DistanceX", 0, 2, -1, 1, 8.2),
    Sketcher.Constraint("DistanceY", 0, 2, -1, 1, 37.5),
])
sketch15.setExpression("Constraints[8]", "Params.sketch15_width")
sketch15.setExpression("Constraints[9]", "Params.sketch15_height")
pocket3 = body.newObject("PartDesign::Pocket", "Pocket002")
pocket3.Profile = sketch15
pocket3.setExpression("Length", "Params.pocket3_length")
pocket3.Reversed = True

# Sketch on XY plane
sketch16 = body.newObject("Sketcher::SketchObject", "Sketch015")
sketch16.AttachmentSupport = (doc.getObject("XY_Plane"), [""])
sketch16.MapMode = "FlatFace"
sketch16.AttachmentOffset = App.Placement(V(0, 0, -11), App.Rotation())
add_polygon(sketch16, [(-3.5, -34.35), (-3.5, -37.5), (3.5, -37.5), (3.5, -34.35)])  # lines 0-3
sketch16.addConstraint([
    Sketcher.Constraint("Vertical", 0),
    Sketcher.Constraint("Horizontal", 1),
    Sketcher.Constraint("Vertical", 2),
    Sketcher.Constraint("Horizontal", 3),
    Sketcher.Constraint("DistanceX", 1, 1, 1, 2, 7.0),
    Sketcher.Constraint("DistanceY", 0, 2, 0, 1, 3.15),
    Sketcher.Constraint("DistanceX", 0, 2, -1, 1, 3.5),
    Sketcher.Constraint("DistanceY", 0, 2, -1, 1, 37.5),
])
sketch16.setExpression("Constraints[8]", "Params.sketch16_width")
sketch16.setExpression("Constraints[9]", "Params.sketch16_height")
pocket4 = body.newObject("PartDesign::Pocket", "Pocket003")
pocket4.Profile = sketch16
pocket4.setExpression("Length", "Params.pocket4_length")
pocket4.Reversed = True

# Sketch on XZ plane
sketch17 = body.newObject("Sketcher::SketchObject", "Sketch016")
sketch17.AttachmentSupport = (doc.getObject("XZ_Plane"), [""])
sketch17.MapMode = "FlatFace"
sketch17.AttachmentOffset = App.Placement(V(0, 0, 37.5), App.Rotation())
sketch17.addGeometry(Part.Circle(V(-10.25, -8.3, 0), V(0, 0, 1), 1.1), False)
sketch17.addConstraint([
    Sketcher.Constraint("Diameter", 0, 2.2),
    Sketcher.Constraint("DistanceY", 0, 3, -1, 1, 8.3),
    Sketcher.Constraint("DistanceX", 0, 3, -1, 1, 10.25),
])
sketch17.setExpression("Constraints[0]", "Params.sketch17_diameter")
pocket5 = body.newObject("PartDesign::Pocket", "Pocket004")
pocket5.Profile = sketch17
pocket5.setExpression("Length", "Params.pocket5_length")

# Sketch on XZ plane
sketch18 = body.newObject("Sketcher::SketchObject", "Sketch017")
sketch18.AttachmentSupport = (doc.getObject("XZ_Plane"), [""])
sketch18.MapMode = "FlatFace"
sketch18.AttachmentOffset = App.Placement(V(0, 0, 37.5), App.Rotation())
sketch18.addGeometry(Part.Circle(V(10.25, -8.3, 0), V(0, 0, 1), 1.1), False)
sketch18.addConstraint([
    Sketcher.Constraint("Diameter", 0, 2.2),
    Sketcher.Constraint("DistanceY", 0, 3, -1, 1, 8.3),
    Sketcher.Constraint("DistanceX", -1, 1, 0, 3, 10.25),
])
sketch18.setExpression("Constraints[0]", "Params.sketch18_diameter")
pocket6 = body.newObject("PartDesign::Pocket", "Pocket005")
pocket6.Profile = sketch18
pocket6.setExpression("Length", "Params.pocket6_length")

# Sketch on XZ plane
sketch19 = body.newObject("Sketcher::SketchObject", "Sketch018")
sketch19.AttachmentSupport = (doc.getObject("XZ_Plane"), [""])
sketch19.MapMode = "FlatFace"
sketch19.AttachmentOffset = App.Placement(V(0, 0, 37.5), App.Rotation())
sketch19.addGeometry(Part.Circle(V(-10.25, -32.75, 0), V(0, 0, 1), 1.1), False)
sketch19.addConstraint([
    Sketcher.Constraint("Diameter", 0, 2.2),
    Sketcher.Constraint("DistanceX", 0, 3, -1, 1, 10.25),
    Sketcher.Constraint("DistanceY", 0, 3, -1, 1, 32.75),
])
sketch19.setExpression("Constraints[0]", "Params.sketch19_diameter")
pocket7 = body.newObject("PartDesign::Pocket", "Pocket006")
pocket7.Profile = sketch19
pocket7.setExpression("Length", "Params.pocket7_length")

# Sketch on XZ plane
sketch20 = body.newObject("Sketcher::SketchObject", "Sketch019")
sketch20.AttachmentSupport = (doc.getObject("XZ_Plane"), [""])
sketch20.MapMode = "FlatFace"
sketch20.AttachmentOffset = App.Placement(V(0, 0, 37.5), App.Rotation())
sketch20.addGeometry(Part.Circle(V(10.25, -32.75, 0), V(0, 0, 1), 1.1), False)
sketch20.addConstraint([
    Sketcher.Constraint("Diameter", 0, 2.2),
    Sketcher.Constraint("DistanceX", -1, 1, 0, 3, 10.25),
    Sketcher.Constraint("DistanceY", 0, 3, -1, 1, 32.75),
])
sketch20.setExpression("Constraints[0]", "Params.sketch20_diameter")
pocket8 = body.newObject("PartDesign::Pocket", "Pocket007")
pocket8.Profile = sketch20
pocket8.setExpression("Length", "Params.pocket8_length")

# Sketch on XZ plane
sketch21 = body.newObject("Sketcher::SketchObject", "Sketch020")
sketch21.AttachmentSupport = (doc.getObject("XZ_Plane"), [""])
sketch21.MapMode = "FlatFace"
sketch21.AttachmentOffset = App.Placement(V(0, 0, 6.7), App.Rotation())
sketch21.addGeometry(Part.Circle(V(0, -52, 0), V(0, 0, 1), 10.5), False)
sketch21.addConstraint([
    Sketcher.Constraint("PointOnObject", 0, 3, -2),
    Sketcher.Constraint("Diameter", 0, 21.0),
    Sketcher.Constraint("DistanceY", 0, 3, -1, 1, 52.0),
])
sketch21.setExpression("Constraints[1]", "Params.sketch21_diameter")
pocket9 = body.newObject("PartDesign::Pocket", "Pocket008")
pocket9.Profile = sketch21
pocket9.setExpression("Length", "Params.pocket9_length")

# Sketch on XY plane
sketch22 = body.newObject("Sketcher::SketchObject", "Sketch021")
sketch22.AttachmentSupport = (doc.getObject("XY_Plane"), [""])
sketch22.MapMode = "FlatFace"
sketch22.AttachmentOffset = App.Placement(V(0, 0, -61.7), App.Rotation())
add_polygon(sketch22, [(10.9, -3.5), (10.9, -6.65), (30.4, -6.65), (30.4, -3.5)])  # lines 0-3
sketch22.addConstraint([
    Sketcher.Constraint("Vertical", 0),
    Sketcher.Constraint("Horizontal", 1),
    Sketcher.Constraint("Vertical", 2),
    Sketcher.Constraint("Horizontal", 3),
    Sketcher.Constraint("DistanceX", 1, 1, 1, 2, 19.5),
    Sketcher.Constraint("DistanceY", 0, 2, 0, 1, 3.15),
    Sketcher.Constraint("DistanceX", -1, 1, 0, 2, 10.9),
    Sketcher.Constraint("DistanceY", 2, 2, -1, 1, 3.5),
])
sketch22.setExpression("Constraints[8]", "Params.sketch22_width")
sketch22.setExpression("Constraints[9]", "Params.sketch22_height")
pocket10 = body.newObject("PartDesign::Pocket", "Pocket009")
pocket10.Profile = sketch22
pocket10.setExpression("Length", "Params.pocket10_length")
pocket10.Reversed = True

# Sketch on XY plane
sketch23 = body.newObject("Sketcher::SketchObject", "Sketch022")
sketch23.AttachmentSupport = (doc.getObject("XY_Plane"), [""])
sketch23.MapMode = "FlatFace"
sketch23.AttachmentOffset = App.Placement(V(0, 0, -60.2), App.Rotation())
add_polygon(sketch23, [(30.4, -3.5), (30.4, -6.65), (38.7, -6.65), (38.7, -3.5)])  # lines 0-3
sketch23.addConstraint([
    Sketcher.Constraint("Vertical", 0),
    Sketcher.Constraint("Horizontal", 1),
    Sketcher.Constraint("Vertical", 2),
    Sketcher.Constraint("Horizontal", 3),
    Sketcher.Constraint("DistanceX", 1, 1, 1, 2, 8.3),
    Sketcher.Constraint("DistanceY", 0, 2, 0, 1, 3.15),
    Sketcher.Constraint("DistanceX", -1, 1, 0, 2, 30.4),
    Sketcher.Constraint("DistanceY", 2, 2, -1, 1, 3.5),
])
sketch23.setExpression("Constraints[8]", "Params.sketch23_width")
sketch23.setExpression("Constraints[9]", "Params.sketch23_height")
pocket11 = body.newObject("PartDesign::Pocket", "Pocket010")
pocket11.Profile = sketch23
pocket11.setExpression("Length", "Params.pocket11_length")
pocket11.Reversed = True

# Sketch on XY plane
sketch24 = body.newObject("Sketcher::SketchObject", "Sketch023")
sketch24.AttachmentSupport = (doc.getObject("XY_Plane"), [""])
sketch24.MapMode = "FlatFace"
sketch24.AttachmentOffset = App.Placement(V(0, 0, -55.5), App.Rotation())
add_polygon(sketch24, [(0, -3.5), (0, -6.65), (11, -6.65), (11, -3.5)])  # lines 0-3
sketch24.addConstraint([
    Sketcher.Constraint("Vertical", 0),
    Sketcher.Constraint("Horizontal", 1),
    Sketcher.Constraint("Vertical", 2),
    Sketcher.Constraint("Horizontal", 3),
    Sketcher.Constraint("PointOnObject", 0, 2, -2),
    Sketcher.Constraint("DistanceX", 1, 1, 1, 2, 11.0),
    Sketcher.Constraint("DistanceY", 0, 2, 0, 1, 3.15),
    Sketcher.Constraint("DistanceY", 2, 2, -1, 1, 3.5),
])
sketch24.setExpression("Constraints[9]", "Params.sketch24_width")
sketch24.setExpression("Constraints[10]", "Params.sketch24_height")
pocket12 = body.newObject("PartDesign::Pocket", "Pocket011")
pocket12.Profile = sketch24
pocket12.setExpression("Length", "Params.pocket12_length")
pocket12.Reversed = True

# Sketch on XZ plane
sketch25 = body.newObject("Sketcher::SketchObject", "Sketch024")
sketch25.AttachmentSupport = (doc.getObject("XZ_Plane"), [""])
sketch25.MapMode = "FlatFace"
sketch25.AttachmentOffset = App.Placement(V(0, 0, 6.7), App.Rotation())
sketch25.addGeometry(Part.Circle(V(8.3, -62.25, 0), V(0, 0, 1), 1.1), False)
sketch25.addConstraint([
    Sketcher.Constraint("Diameter", 0, 2.2),
    Sketcher.Constraint("DistanceX", -1, 1, 0, 3, 8.3),
    Sketcher.Constraint("DistanceY", 0, 3, -1, 1, 62.25),
])
sketch25.setExpression("Constraints[0]", "Params.sketch25_diameter")
pocket13 = body.newObject("PartDesign::Pocket", "Pocket012")
pocket13.Profile = sketch25
pocket13.setExpression("Length", "Params.pocket13_length")

# Sketch on XZ plane
sketch26 = body.newObject("Sketcher::SketchObject", "Sketch025")
sketch26.AttachmentSupport = (doc.getObject("XZ_Plane"), [""])
sketch26.MapMode = "FlatFace"
sketch26.AttachmentOffset = App.Placement(V(0, 0, 6.7), App.Rotation())
sketch26.addGeometry(Part.Circle(V(8.3, -41.75, 0), V(0, 0, 1), 1.1), False)
sketch26.addConstraint([
    Sketcher.Constraint("Diameter", 0, 2.2),
    Sketcher.Constraint("DistanceX", -1, 1, 0, 3, 8.3),
    Sketcher.Constraint("DistanceY", 0, 3, -1, 1, 41.75),
])
sketch26.setExpression("Constraints[0]", "Params.sketch26_diameter")
pocket14 = body.newObject("PartDesign::Pocket", "Pocket013")
pocket14.Profile = sketch26
pocket14.setExpression("Length", "Params.pocket14_length")

# Sketch on XZ plane
sketch27 = body.newObject("Sketcher::SketchObject", "Sketch026")
sketch27.AttachmentSupport = (doc.getObject("XZ_Plane"), [""])
sketch27.MapMode = "FlatFace"
sketch27.AttachmentOffset = App.Placement(V(0, 0, 6.7), App.Rotation())
sketch27.addGeometry(Part.Circle(V(32.75, -62.25, 0), V(0, 0, 1), 1.1), False)
sketch27.addConstraint([
    Sketcher.Constraint("Diameter", 0, 2.2),
    Sketcher.Constraint("DistanceX", -1, 1, 0, 3, 32.75),
    Sketcher.Constraint("DistanceY", 0, 3, -1, 1, 62.25),
])
sketch27.setExpression("Constraints[0]", "Params.sketch27_diameter")
pocket15 = body.newObject("PartDesign::Pocket", "Pocket014")
pocket15.Profile = sketch27
pocket15.setExpression("Length", "Params.pocket15_length")

# Sketch on XZ plane
sketch28 = body.newObject("Sketcher::SketchObject", "Sketch027")
sketch28.AttachmentSupport = (doc.getObject("XZ_Plane"), [""])
sketch28.MapMode = "FlatFace"
sketch28.AttachmentOffset = App.Placement(V(0, 0, 6.7), App.Rotation())
sketch28.addGeometry(Part.Circle(V(32.75, -41.75, 0), V(0, 0, 1), 1.1), False)
sketch28.addConstraint([
    Sketcher.Constraint("Diameter", 0, 2.2),
    Sketcher.Constraint("DistanceX", -1, 1, 0, 3, 32.75),
    Sketcher.Constraint("DistanceY", 0, 3, -1, 1, 41.75),
])
sketch28.setExpression("Constraints[0]", "Params.sketch28_diameter")
pocket16 = body.newObject("PartDesign::Pocket", "Pocket015")
pocket16.Profile = sketch28
pocket16.setExpression("Length", "Params.pocket16_length")

doc.recompute()
